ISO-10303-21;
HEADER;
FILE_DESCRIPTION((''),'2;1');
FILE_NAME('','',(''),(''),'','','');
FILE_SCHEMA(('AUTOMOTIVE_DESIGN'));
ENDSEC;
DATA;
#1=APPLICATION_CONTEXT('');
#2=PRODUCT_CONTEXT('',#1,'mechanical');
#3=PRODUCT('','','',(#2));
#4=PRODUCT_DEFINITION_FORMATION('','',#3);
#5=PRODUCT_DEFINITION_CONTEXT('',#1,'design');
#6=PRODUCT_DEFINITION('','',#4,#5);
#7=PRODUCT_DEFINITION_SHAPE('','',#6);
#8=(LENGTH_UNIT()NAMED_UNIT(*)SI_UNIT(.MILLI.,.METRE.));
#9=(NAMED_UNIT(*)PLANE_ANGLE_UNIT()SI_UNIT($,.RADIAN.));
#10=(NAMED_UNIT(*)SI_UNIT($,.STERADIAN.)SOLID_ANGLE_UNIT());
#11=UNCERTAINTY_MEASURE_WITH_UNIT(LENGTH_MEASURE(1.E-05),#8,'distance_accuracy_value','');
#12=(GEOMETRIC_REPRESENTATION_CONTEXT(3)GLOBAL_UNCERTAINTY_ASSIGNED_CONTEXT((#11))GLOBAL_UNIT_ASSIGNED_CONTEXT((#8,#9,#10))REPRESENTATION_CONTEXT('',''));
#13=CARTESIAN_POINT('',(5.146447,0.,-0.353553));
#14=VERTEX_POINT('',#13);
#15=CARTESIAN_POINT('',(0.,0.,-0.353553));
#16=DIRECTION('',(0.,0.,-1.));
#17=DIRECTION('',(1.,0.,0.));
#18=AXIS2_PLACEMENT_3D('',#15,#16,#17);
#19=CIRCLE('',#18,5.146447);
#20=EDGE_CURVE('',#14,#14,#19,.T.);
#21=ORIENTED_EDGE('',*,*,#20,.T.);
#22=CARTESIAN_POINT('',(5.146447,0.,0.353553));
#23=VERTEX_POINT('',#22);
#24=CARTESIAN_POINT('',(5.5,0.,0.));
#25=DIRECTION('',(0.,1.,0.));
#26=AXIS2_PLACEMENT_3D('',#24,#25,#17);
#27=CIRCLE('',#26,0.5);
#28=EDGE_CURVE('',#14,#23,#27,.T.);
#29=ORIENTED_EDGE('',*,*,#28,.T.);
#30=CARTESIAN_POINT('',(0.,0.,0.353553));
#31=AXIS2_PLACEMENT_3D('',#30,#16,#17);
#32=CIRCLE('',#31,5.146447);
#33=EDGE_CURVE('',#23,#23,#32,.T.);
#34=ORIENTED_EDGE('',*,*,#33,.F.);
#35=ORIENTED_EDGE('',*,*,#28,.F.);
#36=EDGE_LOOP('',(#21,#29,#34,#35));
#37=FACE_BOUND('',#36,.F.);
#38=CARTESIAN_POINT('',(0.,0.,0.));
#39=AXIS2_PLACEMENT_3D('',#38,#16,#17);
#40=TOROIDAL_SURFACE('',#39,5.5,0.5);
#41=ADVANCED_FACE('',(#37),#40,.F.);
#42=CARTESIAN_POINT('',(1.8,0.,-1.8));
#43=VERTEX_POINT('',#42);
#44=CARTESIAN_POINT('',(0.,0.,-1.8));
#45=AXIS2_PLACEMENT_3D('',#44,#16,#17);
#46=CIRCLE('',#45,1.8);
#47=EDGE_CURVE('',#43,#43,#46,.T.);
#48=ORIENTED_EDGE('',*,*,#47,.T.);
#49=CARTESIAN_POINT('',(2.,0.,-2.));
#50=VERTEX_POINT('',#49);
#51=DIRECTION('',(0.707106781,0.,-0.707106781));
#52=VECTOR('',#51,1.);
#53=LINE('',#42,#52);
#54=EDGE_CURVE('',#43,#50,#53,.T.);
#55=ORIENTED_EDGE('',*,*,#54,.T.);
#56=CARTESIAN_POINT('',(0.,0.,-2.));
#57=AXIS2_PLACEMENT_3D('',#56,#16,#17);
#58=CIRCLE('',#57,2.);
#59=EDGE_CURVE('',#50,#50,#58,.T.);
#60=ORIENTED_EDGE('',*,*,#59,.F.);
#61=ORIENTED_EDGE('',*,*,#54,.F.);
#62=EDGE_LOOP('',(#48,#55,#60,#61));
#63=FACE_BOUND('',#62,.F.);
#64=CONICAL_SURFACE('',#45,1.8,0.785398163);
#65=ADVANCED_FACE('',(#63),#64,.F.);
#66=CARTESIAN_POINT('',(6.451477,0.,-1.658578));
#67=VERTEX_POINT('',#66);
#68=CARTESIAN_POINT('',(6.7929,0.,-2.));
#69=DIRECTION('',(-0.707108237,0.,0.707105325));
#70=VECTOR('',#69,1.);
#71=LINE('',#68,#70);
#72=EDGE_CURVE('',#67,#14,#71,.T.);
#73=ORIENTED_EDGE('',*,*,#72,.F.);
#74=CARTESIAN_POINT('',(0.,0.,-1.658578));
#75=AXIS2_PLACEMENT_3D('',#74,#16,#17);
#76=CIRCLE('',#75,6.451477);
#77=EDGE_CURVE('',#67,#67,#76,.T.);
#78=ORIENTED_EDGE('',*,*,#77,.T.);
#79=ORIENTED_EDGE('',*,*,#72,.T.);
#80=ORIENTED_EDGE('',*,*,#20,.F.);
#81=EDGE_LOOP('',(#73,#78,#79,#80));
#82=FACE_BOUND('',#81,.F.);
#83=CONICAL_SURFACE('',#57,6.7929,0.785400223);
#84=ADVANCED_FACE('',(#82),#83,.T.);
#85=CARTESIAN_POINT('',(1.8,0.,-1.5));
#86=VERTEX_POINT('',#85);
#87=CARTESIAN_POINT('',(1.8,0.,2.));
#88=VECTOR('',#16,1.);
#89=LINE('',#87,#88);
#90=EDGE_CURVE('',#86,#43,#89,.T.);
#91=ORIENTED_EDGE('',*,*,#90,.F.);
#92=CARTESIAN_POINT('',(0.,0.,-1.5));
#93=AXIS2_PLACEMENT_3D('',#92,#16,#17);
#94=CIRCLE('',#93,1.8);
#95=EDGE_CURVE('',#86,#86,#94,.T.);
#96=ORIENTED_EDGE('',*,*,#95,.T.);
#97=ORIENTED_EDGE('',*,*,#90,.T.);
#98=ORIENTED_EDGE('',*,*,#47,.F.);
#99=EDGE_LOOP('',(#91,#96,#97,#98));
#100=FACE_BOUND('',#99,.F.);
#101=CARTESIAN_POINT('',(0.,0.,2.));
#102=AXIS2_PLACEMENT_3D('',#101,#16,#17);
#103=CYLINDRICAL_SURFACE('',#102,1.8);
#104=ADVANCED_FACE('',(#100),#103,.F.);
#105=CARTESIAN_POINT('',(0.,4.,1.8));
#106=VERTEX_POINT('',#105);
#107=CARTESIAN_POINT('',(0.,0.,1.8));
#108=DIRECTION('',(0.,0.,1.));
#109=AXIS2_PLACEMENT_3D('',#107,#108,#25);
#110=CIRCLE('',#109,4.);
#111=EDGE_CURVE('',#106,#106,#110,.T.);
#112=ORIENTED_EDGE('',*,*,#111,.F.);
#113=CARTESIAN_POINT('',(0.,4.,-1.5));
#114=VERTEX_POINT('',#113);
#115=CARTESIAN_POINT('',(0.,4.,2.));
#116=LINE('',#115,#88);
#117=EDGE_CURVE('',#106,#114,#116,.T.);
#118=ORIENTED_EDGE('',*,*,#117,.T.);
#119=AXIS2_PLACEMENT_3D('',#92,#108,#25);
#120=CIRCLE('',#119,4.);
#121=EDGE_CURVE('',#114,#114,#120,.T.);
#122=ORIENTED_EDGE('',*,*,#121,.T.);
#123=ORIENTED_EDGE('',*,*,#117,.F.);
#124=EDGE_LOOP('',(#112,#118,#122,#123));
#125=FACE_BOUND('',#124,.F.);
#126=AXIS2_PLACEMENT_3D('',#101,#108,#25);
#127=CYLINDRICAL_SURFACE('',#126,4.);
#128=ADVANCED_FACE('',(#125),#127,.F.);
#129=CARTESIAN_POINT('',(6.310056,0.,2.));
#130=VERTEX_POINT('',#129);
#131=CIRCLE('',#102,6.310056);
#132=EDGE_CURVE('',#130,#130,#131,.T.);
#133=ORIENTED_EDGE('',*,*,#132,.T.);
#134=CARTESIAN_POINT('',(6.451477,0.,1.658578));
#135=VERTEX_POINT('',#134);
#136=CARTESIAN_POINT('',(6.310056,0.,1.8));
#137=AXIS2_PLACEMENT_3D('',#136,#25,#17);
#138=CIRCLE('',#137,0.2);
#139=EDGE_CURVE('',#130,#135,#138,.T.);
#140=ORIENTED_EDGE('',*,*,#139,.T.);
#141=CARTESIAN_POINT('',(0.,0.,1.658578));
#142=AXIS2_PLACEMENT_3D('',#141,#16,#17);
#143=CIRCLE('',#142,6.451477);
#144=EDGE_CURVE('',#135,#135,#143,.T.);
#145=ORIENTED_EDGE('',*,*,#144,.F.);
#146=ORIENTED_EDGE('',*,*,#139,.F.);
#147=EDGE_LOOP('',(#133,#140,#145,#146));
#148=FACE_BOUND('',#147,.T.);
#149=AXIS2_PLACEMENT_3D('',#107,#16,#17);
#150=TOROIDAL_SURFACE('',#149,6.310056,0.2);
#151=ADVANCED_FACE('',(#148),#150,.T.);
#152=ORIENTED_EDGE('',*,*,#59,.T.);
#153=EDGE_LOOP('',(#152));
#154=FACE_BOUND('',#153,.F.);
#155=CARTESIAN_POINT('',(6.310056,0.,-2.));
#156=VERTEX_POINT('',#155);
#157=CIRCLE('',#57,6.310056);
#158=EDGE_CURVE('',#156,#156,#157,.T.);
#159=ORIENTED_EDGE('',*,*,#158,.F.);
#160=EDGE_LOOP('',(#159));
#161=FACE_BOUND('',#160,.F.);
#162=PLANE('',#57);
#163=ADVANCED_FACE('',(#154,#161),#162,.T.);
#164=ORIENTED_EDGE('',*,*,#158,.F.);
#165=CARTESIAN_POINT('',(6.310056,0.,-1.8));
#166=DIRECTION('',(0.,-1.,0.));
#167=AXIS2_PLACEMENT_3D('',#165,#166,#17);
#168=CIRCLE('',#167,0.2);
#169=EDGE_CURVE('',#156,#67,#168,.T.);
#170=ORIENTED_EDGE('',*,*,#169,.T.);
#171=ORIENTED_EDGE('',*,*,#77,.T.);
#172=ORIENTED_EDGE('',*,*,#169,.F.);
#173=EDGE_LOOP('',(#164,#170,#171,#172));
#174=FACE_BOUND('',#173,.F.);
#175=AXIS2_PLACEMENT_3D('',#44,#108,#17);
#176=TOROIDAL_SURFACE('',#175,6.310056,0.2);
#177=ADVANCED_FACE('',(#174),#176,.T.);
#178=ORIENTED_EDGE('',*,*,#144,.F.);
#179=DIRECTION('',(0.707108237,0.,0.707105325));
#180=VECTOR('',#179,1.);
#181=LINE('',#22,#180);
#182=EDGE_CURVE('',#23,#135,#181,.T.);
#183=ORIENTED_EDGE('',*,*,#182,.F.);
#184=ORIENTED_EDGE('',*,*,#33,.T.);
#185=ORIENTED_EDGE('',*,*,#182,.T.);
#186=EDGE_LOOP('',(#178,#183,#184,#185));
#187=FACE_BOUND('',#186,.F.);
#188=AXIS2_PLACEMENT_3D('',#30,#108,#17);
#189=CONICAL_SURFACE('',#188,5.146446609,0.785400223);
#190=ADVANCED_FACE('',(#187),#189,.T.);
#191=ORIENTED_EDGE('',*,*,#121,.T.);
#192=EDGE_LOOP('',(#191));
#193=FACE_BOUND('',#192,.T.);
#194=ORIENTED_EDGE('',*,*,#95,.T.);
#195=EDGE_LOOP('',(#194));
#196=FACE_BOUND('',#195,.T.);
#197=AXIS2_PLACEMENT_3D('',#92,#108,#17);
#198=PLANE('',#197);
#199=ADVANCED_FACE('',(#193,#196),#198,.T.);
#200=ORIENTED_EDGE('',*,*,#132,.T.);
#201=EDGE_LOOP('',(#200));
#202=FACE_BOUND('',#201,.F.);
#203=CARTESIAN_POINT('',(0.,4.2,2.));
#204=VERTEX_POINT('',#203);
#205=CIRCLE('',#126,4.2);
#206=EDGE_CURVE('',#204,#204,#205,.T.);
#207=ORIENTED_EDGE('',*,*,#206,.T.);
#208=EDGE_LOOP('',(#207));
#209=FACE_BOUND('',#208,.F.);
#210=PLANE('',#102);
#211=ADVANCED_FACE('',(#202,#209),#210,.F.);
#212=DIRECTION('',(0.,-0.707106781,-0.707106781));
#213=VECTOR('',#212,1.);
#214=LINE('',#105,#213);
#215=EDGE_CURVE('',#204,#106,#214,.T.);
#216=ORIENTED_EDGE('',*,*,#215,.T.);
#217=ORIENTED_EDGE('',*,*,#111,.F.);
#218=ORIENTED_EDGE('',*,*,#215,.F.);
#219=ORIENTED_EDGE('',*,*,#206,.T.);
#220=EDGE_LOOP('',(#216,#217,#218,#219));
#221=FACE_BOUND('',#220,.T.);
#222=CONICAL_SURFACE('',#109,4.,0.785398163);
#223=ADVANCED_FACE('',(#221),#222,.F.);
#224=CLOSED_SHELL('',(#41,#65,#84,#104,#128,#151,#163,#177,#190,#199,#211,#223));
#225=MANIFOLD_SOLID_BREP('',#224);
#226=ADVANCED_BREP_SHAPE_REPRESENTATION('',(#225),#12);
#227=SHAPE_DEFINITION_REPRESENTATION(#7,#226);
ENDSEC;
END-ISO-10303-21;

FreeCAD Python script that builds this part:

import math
import FreeCAD as App
import Part
import Sketcher

V = App.Vector
Q = App.Units.Quantity


def edges_at(feature, points):
    """Names of the edges that pass closest to the given points."""
    edges = feature.Shape.Edges
    near = lambda p: min(range(len(edges)), key=lambda i: edges[i].distToShape(Part.Vertex(*p))[0])
    return sorted({f"Edge{near(p) + 1}" for p in points})

doc = App.newDocument("Part")
body = doc.addObject("PartDesign::Body", "Body")

sketch1 = body.newObject("Sketcher::SketchObject", "Sketch")
sketch1.AttachmentSupport = (doc.getObject("XZ_Plane"), [""])
sketch1.MapMode = "FlatFace"
sketch1.addGeometry([
    Part.LineSegment(V(5.1, 0.4, 0), V(6.8, 2, 0)),
    Part.LineSegment(V(6.8, 2, 0), V(1.8, 2, 0)),
    Part.LineSegment(V(1.8, 2, 0), V(1.8, -2, 0)),
    Part.LineSegment(V(1.8, -2, 0), V(6.8, -2, 0)),
    Part.LineSegment(V(6.8, -2, 0), V(5.1, -0.4, 0)),
    Part.ArcOfCircle(Part.Circle(V(5.5, 0, 0), V(0, 0, 1), 0.5), math.radians(135), math.radians(225)),
], False)
sketch1.addConstraint([
    Sketcher.Constraint("Coincident", 0, 2, 1, 1),
    Sketcher.Constraint("Coincident", 1, 2, 2, 1),
    Sketcher.Constraint("Coincident", 2, 2, 3, 1),
    Sketcher.Constraint("Coincident", 3, 2, 4, 1),
    Sketcher.Constraint("Tangent", 4, 2, 5, 2),
    Sketcher.Constraint("Tangent", 5, 1, 0, 1),
    Sketcher.Constraint("Horizontal", 1),
    Sketcher.Constraint("Vertical", 2),
    Sketcher.Constraint("Horizontal", 3),
    Sketcher.Constraint("Symmetric", 0, 2, 3, 2, -1),
    Sketcher.Constraint("PointOnObject", 5, 3, -1),
    Sketcher.Constraint("Perpendicular", 0, 4),
    Sketcher.Constraint("Radius", 5, Q("0.5 mm")),
    Sketcher.Constraint("DistanceY", 2, 2, 2, 1, Q("4 mm")),
    Sketcher.Constraint("DistanceX", -1, 1, 5, 3, Q("5.5 mm")),
    Sketcher.Constraint("DistanceX", -1, 1, 1, 2, Q("1.8 mm")),
])
revolution = body.newObject("PartDesign::Revolution", "Revolution")
revolution.Profile = sketch1
revolution.ReferenceAxis = (sketch1, ["V_Axis"])
revolution.Angle = 360
doc.recompute()

fillet = body.newObject("PartDesign::Fillet", "Fillet")
fillet.Base = (revolution, edges_at(revolution, [(-6.793, 0, 2), (-6.793, 0, -2)]))
fillet.Radius = 0.2

sketch2 = body.newObject("Sketcher::SketchObject", "Sketch001")
sketch2.AttachmentSupport = (doc.getObject("XY_Plane"), [""])
sketch2.MapMode = "FlatFace"
sketch2.AttachmentOffset = App.Placement(V(0, 0, 2), App.Rotation())
sketch2.addGeometry(Part.Circle(V(0, 0, 0), V(0, 0, 1), 4), False)
sketch2.addConstraint([
    Sketcher.Constraint("Coincident", 0, 3, -1, 1),
    Sketcher.Constraint("Diameter", 0, Q("8 mm")),
])
pocket1 = body.newObject("PartDesign::Pocket", "Pocket")
pocket1.Profile = sketch2
pocket1.Length = 3.5
doc.recompute()

chamfer = body.newObject("PartDesign::Chamfer", "Chamfer")
chamfer.Base = (pocket1, edges_at(pocket1, [(0, -4, 2), (-1.8, 0, -2)]))
chamfer.Size = 0.2

doc.recompute()
